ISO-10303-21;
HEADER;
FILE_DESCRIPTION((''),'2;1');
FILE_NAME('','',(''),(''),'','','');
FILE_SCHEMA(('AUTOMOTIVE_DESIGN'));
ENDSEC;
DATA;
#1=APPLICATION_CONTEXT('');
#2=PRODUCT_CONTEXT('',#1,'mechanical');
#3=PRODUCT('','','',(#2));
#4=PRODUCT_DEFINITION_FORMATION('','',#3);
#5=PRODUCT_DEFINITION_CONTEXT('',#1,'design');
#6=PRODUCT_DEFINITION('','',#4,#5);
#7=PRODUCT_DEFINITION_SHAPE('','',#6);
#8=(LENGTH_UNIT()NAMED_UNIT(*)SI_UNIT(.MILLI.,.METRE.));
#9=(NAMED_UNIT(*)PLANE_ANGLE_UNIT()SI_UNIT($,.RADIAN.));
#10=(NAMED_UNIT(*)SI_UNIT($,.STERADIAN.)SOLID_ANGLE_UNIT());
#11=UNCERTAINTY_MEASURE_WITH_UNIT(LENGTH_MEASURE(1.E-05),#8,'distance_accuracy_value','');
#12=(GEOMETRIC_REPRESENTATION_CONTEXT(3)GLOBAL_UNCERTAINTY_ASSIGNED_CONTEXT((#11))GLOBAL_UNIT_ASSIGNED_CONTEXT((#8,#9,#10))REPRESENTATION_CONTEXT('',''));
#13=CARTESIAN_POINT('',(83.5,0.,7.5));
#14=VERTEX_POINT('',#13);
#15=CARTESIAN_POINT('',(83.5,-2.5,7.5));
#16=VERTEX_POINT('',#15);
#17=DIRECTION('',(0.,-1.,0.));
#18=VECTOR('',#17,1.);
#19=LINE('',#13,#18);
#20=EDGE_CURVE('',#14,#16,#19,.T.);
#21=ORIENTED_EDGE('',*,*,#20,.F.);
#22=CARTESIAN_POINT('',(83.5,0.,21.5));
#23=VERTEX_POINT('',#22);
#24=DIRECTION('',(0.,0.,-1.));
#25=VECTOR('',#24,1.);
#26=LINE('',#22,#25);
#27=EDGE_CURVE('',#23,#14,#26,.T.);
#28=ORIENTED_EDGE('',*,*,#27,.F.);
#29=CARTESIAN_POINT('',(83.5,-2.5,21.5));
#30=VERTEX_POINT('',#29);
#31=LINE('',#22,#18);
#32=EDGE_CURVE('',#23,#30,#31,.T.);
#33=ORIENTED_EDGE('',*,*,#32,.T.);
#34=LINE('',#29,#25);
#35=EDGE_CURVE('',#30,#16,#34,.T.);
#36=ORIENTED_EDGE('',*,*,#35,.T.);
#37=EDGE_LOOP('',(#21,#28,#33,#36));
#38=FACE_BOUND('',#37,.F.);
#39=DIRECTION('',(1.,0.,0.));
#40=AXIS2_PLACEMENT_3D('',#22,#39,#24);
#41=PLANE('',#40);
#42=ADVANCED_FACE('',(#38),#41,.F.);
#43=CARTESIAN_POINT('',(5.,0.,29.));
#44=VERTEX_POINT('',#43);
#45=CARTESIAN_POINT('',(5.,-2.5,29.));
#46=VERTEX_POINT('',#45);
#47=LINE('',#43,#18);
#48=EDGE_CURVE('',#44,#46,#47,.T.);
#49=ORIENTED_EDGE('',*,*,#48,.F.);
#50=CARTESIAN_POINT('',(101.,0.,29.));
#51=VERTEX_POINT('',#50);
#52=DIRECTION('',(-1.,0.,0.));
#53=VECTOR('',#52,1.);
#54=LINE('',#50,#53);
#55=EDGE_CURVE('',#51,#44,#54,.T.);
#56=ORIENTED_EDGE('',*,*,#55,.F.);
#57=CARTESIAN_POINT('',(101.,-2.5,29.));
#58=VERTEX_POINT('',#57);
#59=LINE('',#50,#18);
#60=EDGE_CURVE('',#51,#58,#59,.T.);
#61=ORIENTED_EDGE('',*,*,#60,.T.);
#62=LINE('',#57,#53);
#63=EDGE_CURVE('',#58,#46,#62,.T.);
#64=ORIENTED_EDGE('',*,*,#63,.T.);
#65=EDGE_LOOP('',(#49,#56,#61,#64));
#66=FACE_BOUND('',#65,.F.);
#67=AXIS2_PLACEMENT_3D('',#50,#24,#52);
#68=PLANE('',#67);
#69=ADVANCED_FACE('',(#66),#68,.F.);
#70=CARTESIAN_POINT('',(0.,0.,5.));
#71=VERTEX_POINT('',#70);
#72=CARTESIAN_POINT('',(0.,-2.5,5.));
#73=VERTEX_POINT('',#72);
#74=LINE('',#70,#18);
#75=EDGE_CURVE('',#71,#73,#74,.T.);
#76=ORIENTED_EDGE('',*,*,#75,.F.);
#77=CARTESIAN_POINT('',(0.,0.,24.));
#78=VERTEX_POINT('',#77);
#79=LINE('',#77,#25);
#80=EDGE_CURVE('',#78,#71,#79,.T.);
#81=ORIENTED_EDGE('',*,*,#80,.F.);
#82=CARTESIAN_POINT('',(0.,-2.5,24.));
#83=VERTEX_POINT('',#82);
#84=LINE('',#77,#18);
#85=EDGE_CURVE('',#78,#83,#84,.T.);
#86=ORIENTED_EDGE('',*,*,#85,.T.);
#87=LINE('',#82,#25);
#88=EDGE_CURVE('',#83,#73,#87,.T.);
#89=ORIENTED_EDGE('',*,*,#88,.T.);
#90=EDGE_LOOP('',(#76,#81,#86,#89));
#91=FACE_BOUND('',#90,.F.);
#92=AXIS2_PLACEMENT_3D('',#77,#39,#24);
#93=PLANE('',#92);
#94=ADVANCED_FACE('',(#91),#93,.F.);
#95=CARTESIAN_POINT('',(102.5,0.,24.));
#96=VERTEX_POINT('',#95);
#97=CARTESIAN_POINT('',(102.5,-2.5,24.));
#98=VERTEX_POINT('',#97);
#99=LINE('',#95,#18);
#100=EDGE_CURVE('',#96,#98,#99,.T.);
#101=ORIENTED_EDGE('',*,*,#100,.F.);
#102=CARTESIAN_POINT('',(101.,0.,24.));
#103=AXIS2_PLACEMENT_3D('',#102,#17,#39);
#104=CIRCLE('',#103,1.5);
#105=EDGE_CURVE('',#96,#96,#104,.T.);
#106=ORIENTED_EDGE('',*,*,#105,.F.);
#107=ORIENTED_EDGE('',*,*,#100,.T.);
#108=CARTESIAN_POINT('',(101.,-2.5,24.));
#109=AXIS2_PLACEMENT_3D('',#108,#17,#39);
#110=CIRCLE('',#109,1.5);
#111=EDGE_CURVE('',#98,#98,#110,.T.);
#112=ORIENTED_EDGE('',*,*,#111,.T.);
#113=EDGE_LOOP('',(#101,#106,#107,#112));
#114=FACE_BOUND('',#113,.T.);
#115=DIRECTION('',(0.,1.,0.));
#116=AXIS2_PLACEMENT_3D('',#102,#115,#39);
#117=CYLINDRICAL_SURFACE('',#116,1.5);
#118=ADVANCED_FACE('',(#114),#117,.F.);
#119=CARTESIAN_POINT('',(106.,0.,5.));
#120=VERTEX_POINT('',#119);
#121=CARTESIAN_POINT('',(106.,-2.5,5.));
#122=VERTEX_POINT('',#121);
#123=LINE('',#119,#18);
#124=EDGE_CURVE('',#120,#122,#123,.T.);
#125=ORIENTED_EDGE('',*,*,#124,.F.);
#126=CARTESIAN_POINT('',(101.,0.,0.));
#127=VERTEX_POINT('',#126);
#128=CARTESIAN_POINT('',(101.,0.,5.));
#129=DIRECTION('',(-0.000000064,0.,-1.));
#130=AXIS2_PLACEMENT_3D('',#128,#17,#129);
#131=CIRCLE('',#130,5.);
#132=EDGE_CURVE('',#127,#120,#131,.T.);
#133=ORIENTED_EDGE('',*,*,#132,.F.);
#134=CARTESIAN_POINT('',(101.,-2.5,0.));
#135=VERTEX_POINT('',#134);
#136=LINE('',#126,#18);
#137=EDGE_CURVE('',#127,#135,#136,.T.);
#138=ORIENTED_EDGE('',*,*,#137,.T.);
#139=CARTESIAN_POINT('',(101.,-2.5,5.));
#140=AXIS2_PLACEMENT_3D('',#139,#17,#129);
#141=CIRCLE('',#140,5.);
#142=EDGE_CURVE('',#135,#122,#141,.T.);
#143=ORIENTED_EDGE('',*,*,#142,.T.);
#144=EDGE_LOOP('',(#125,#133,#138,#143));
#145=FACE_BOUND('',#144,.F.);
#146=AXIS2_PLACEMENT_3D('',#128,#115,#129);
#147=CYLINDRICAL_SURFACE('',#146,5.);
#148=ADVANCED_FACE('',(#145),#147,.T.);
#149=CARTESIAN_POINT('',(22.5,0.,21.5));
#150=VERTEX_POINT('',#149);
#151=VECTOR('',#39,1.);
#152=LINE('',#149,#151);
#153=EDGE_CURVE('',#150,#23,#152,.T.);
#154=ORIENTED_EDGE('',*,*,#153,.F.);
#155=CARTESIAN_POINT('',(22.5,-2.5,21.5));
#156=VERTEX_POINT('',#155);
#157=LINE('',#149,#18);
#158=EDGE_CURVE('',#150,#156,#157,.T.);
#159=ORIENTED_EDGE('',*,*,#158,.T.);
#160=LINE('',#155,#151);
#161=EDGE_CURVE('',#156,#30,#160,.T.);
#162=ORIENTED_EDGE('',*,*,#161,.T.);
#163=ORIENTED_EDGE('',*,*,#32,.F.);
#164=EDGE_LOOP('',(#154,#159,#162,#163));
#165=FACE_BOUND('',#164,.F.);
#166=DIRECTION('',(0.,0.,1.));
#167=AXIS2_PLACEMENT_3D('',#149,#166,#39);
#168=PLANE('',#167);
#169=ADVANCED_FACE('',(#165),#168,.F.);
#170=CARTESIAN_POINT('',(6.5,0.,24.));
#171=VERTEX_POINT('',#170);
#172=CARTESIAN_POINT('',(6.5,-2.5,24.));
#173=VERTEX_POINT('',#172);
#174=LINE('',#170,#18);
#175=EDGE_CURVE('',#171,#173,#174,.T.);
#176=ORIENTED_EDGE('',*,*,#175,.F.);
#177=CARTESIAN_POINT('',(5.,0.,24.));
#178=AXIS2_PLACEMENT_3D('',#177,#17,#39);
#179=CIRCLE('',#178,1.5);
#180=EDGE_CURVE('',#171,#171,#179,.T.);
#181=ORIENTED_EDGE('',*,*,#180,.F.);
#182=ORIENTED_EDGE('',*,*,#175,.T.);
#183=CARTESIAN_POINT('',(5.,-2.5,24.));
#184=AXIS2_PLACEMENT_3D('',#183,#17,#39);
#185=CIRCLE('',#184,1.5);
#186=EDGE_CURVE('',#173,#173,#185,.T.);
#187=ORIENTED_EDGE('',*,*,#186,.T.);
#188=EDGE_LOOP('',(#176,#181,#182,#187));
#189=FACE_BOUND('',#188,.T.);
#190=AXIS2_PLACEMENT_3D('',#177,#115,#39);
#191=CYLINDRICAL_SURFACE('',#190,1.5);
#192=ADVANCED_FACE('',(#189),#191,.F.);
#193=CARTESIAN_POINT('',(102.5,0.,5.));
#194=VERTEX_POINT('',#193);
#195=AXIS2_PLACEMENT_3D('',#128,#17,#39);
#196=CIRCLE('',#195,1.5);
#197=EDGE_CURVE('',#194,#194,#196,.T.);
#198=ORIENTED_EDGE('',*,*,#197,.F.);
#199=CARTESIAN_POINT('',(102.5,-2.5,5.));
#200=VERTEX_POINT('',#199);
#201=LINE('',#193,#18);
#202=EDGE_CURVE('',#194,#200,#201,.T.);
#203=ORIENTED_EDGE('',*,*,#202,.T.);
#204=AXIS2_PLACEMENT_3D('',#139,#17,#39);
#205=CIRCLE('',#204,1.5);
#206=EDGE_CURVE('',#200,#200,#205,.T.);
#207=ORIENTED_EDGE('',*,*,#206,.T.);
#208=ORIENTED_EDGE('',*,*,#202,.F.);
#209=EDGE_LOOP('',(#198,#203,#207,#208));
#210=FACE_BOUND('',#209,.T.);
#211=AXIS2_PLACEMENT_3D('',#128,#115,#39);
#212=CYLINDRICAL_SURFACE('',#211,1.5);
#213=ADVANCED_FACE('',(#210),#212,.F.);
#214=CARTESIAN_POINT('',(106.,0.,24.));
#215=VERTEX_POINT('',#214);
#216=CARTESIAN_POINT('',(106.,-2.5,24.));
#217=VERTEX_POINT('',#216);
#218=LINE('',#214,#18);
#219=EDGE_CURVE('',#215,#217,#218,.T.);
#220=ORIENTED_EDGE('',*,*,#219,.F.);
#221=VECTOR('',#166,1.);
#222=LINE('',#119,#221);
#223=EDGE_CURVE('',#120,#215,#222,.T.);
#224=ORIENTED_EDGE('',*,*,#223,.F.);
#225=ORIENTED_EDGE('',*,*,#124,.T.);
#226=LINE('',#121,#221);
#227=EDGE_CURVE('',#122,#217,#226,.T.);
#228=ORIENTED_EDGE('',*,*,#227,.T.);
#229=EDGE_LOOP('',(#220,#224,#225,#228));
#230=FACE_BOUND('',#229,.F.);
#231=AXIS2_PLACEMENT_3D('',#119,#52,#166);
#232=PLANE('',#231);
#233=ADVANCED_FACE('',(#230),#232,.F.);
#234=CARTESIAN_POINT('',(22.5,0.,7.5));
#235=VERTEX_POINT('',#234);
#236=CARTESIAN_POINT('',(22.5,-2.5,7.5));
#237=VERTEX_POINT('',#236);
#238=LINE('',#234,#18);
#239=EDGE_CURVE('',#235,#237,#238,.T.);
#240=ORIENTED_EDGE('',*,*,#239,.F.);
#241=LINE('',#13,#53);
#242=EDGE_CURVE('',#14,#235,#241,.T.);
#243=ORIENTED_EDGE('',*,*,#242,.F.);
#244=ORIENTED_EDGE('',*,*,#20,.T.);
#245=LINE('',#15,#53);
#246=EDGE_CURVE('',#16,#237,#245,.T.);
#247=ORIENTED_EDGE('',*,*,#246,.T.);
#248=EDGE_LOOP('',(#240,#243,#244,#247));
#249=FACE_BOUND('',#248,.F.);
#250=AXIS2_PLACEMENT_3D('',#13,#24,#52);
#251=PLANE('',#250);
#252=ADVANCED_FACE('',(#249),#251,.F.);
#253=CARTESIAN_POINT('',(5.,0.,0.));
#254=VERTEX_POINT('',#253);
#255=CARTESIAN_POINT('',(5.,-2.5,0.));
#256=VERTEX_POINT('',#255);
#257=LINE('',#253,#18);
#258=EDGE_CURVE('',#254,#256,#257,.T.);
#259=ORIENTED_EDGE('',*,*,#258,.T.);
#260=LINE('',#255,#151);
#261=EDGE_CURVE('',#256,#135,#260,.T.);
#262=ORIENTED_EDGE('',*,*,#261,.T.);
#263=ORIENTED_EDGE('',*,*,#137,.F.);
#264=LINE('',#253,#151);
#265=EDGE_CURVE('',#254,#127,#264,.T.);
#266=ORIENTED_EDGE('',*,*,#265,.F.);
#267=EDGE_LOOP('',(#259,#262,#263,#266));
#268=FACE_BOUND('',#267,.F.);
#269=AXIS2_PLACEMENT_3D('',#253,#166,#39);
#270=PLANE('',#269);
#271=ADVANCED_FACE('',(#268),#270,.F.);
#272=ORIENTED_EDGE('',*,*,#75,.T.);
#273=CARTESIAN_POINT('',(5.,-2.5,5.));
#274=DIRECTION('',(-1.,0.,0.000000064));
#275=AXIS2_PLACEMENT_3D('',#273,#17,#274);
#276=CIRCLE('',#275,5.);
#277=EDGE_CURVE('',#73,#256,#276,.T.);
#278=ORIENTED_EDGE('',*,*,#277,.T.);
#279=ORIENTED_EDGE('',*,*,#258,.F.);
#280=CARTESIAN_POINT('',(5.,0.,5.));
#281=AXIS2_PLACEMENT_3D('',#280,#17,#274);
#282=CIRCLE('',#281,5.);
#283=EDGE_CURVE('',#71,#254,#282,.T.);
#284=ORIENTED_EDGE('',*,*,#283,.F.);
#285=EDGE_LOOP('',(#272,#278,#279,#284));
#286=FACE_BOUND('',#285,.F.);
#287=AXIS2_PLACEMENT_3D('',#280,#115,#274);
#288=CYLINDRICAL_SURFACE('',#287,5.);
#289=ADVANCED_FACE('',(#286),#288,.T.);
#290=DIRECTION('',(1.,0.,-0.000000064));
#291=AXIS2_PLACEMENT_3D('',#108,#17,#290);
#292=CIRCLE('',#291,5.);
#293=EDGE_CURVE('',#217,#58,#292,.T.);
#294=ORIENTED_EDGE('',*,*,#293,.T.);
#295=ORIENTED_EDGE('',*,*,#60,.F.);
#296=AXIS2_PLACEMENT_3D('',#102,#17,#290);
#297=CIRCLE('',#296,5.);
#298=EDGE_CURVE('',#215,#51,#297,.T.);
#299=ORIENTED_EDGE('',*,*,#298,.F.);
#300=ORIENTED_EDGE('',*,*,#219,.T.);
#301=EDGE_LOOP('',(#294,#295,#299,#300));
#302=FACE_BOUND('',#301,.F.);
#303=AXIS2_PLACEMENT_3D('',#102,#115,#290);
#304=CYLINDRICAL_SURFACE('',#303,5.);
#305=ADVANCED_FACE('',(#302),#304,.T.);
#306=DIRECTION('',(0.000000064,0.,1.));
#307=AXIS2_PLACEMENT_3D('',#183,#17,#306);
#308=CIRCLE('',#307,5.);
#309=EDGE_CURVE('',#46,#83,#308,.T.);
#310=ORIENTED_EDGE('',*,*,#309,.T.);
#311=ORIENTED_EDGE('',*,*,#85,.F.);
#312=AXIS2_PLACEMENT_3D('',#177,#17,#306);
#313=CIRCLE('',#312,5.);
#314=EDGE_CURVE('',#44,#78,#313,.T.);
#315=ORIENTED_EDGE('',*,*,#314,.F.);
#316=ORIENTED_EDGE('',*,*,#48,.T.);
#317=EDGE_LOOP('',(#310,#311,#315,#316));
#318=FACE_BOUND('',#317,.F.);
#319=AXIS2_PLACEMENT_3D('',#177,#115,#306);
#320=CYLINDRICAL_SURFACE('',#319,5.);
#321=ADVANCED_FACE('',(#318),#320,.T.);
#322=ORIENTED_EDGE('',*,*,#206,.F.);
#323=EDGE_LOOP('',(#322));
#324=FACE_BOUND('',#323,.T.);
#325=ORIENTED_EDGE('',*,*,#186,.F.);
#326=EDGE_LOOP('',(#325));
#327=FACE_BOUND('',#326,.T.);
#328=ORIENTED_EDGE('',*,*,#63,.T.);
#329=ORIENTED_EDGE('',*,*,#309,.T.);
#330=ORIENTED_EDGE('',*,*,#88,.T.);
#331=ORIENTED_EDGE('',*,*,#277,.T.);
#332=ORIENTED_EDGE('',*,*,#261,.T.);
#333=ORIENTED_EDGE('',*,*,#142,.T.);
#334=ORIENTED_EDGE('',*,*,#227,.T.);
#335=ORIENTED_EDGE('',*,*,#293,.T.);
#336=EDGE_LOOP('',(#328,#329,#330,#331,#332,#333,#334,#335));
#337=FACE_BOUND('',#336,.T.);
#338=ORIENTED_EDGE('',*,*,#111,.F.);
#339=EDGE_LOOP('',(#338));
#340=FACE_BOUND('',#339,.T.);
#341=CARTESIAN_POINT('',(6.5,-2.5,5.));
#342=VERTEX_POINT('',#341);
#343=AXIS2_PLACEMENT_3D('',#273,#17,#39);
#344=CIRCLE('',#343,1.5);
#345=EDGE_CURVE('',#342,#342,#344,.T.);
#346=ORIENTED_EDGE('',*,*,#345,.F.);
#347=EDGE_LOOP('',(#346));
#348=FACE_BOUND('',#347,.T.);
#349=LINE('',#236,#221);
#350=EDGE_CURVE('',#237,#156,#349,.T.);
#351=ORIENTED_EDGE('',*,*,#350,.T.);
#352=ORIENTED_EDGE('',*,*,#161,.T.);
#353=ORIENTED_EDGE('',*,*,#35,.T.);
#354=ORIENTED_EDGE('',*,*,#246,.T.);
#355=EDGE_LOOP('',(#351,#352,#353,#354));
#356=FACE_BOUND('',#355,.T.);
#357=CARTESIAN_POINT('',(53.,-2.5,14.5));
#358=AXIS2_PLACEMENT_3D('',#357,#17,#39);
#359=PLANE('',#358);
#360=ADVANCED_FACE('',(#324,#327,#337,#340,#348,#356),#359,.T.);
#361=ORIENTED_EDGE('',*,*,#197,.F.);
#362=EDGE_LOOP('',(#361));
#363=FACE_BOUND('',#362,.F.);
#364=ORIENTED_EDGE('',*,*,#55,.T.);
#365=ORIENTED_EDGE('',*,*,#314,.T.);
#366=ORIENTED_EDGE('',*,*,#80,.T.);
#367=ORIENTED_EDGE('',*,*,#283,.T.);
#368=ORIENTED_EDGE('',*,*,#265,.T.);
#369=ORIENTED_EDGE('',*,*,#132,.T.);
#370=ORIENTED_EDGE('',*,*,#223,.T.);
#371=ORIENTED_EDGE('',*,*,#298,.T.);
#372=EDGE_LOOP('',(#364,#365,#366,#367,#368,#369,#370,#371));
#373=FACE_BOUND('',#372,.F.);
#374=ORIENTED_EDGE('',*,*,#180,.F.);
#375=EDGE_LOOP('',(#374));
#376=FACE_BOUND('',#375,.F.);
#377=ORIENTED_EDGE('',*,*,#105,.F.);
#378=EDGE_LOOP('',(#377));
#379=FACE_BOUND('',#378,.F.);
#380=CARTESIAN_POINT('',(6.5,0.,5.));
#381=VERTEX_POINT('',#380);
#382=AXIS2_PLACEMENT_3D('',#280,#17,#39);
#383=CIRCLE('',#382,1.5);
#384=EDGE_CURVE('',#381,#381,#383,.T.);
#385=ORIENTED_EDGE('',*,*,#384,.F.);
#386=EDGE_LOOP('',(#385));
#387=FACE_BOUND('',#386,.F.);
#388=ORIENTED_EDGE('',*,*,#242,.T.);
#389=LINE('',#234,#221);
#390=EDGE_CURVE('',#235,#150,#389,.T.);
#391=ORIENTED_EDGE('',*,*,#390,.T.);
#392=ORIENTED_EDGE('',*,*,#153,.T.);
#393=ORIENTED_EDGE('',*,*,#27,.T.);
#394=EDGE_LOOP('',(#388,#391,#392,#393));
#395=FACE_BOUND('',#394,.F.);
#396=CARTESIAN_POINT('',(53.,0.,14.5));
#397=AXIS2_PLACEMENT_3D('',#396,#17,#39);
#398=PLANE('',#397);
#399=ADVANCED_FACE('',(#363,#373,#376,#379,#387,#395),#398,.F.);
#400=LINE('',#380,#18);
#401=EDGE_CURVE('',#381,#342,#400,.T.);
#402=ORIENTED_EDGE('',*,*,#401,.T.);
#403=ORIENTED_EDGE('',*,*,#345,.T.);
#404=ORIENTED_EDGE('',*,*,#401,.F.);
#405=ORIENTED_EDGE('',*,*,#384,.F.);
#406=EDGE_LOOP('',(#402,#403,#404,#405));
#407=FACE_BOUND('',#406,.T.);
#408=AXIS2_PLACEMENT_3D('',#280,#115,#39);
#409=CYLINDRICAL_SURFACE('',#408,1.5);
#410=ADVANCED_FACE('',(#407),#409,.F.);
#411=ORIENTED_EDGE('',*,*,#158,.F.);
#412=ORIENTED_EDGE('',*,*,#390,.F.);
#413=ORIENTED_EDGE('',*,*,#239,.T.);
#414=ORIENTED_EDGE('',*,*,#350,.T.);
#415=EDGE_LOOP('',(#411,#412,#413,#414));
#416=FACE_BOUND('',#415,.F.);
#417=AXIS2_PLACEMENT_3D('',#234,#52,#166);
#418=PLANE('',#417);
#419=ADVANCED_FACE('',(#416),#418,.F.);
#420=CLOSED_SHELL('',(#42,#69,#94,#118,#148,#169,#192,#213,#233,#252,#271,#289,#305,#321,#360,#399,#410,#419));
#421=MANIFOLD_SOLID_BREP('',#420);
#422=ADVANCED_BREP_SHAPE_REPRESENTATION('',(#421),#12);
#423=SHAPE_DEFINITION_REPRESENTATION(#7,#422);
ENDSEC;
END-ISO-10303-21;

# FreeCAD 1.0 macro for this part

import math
import FreeCAD as App
import Part
import Sketcher
from FreeCAD import Vector
Q = App.Units.Quantity


def add_polygon(sketch, points):
    """Adds a closed chain of lines whose ends are joined by coincident constraints."""
    first, n = sketch.GeometryCount, len(points)
    for a, b in zip(points, points[1:] + points[:1]):
        sketch.addGeometry(Part.LineSegment(App.Vector(*a, 0), App.Vector(*b, 0)), False)
    for i in range(n):
        sketch.addConstraint(Sketcher.Constraint("Coincident", first + i, 2, first + (i + 1) % n, 1))

doc = App.newDocument("Part")
params = doc.addObject("Spreadsheet::Sheet", "Params")
for row, (alias, value) in enumerate([
    ("sketch1_diameter", "3 mm"),
    ("sketch1_radius", "5 mm"),
    ("sketch1_width", "96 mm"),
    ("sketch1_width2", "61 mm"),
    ("sketch1_height", "19 mm"),
    ("pad1_length", "2.5 mm"),
], start=1):
    params.set(f"A{row}", alias)
    params.set(f"B{row}", "=" + value)
    params.setAlias(f"B{row}", alias)

body = doc.addObject("PartDesign::Body", "Body")

sketch1 = body.newObject("Sketcher::SketchObject", "Sketch")
sketch1.AttachmentSupport = (doc.getObject("XZ_Plane"), [""])
sketch1.MapMode = "FlatFace"
sketch1.addGeometry(Part.ArcOfCircle(Part.Circle(Vector(5, 5, 0), Vector(0, 0, 1), 5), math.radians(180), math.radians(270)), False)
sketch1.addGeometry(Part.LineSegment(Vector(5, 0, 0), Vector(101, 0, 0)), False)
sketch1.addGeometry(Part.ArcOfCircle(Part.Circle(Vector(101, 5, 0), Vector(0, 0, 1), 5), math.radians(-90), math.radians(0)), False)
sketch1.addGeometry(Part.LineSegment(Vector(106, 5, 0), Vector(106, 24, 0)), False)
sketch1.addGeometry(Part.ArcOfCircle(Part.Circle(Vector(101, 24, 0), Vector(0, 0, 1), 5), math.radians(0), math.radians(90)), False)
sketch1.addGeometry(Part.LineSegment(Vector(101, 29, 0), Vector(5, 29, 0)), False)
sketch1.addGeometry(Part.ArcOfCircle(Part.Circle(Vector(5, 24, 0), Vector(0, 0, 1), 5), math.radians(90), math.radians(180)), False)
sketch1.addGeometry(Part.LineSegment(Vector(0, 24, 0), Vector(0, 5, 0)), False)
sketch1.addGeometry(Part.Circle(Vector(5, 5, 0), Vector(0, 0, 1), 1.5), False)
sketch1.addGeometry(Part.Circle(Vector(101, 5, 0), Vector(0, 0, 1), 1.5), False)
sketch1.addGeometry(Part.Circle(Vector(5, 24, 0), Vector(0, 0, 1), 1.5), False)
add_polygon(sketch1, [(83.5, 7.5), (22.5, 7.5), (22.5, 21.5), (83.5, 21.5)])
sketch1.addGeometry(Part.Circle(Vector(101, 24, 0), Vector(0, 0, 1), 1.5), False)
sketch1.addConstraint(Sketcher.Constraint("Tangent", 0, 2, 1, 1))
sketch1.addConstraint(Sketcher.Constraint("Tangent", 1, 2, 2, 1))
sketch1.addConstraint(Sketcher.Constraint("Tangent", 2, 2, 3, 1))
sketch1.addConstraint(Sketcher.Constraint("Tangent", 3, 2, 4, 1))
sketch1.addConstraint(Sketcher.Constraint("Tangent", 4, 2, 5, 1))
sketch1.addConstraint(Sketcher.Constraint("Tangent", 5, 2, 6, 1))
sketch1.addConstraint(Sketcher.Constraint("Tangent", 6, 2, 7, 1))
sketch1.addConstraint(Sketcher.Constraint("Tangent", 7, 2, 0, 1))
sketch1.addConstraint(Sketcher.Constraint("Horizontal", 1))
sketch1.addConstraint(Sketcher.Constraint("Vertical", 3))
sketch1.addConstraint(Sketcher.Constraint("Horizontal", 5))
sketch1.addConstraint(Sketcher.Constraint("Vertical", 7))
sketch1.addConstraint(Sketcher.Constraint("Horizontal", 11))
sketch1.addConstraint(Sketcher.Constraint("Vertical", 12))
sketch1.addConstraint(Sketcher.Constraint("Horizontal", 13))
sketch1.addConstraint(Sketcher.Constraint("Vertical", 14))
sketch1.addConstraint(Sketcher.Constraint("Coincident", 8, 3, 0, 3))
sketch1.addConstraint(Sketcher.Constraint("Coincident", 9, 3, 2, 3))
sketch1.addConstraint(Sketcher.Constraint("Coincident", 10, 3, 6, 3))
sketch1.addConstraint(Sketcher.Constraint("Coincident", 15, 3, 4, 3))
sketch1.addConstraint(Sketcher.Constraint("Equal", 0, 2))
sketch1.addConstraint(Sketcher.Constraint("Equal", 2, 4))
sketch1.addConstraint(Sketcher.Constraint("Equal", 4, 6))
sketch1.addConstraint(Sketcher.Constraint("Equal", 8, 9))
sketch1.addConstraint(Sketcher.Constraint("Equal", 9, 10))
sketch1.addConstraint(Sketcher.Constraint("Equal", 10, 15))
sketch1.addConstraint(Sketcher.Constraint("PointOnObject", 0, 2, -1))
sketch1.addConstraint(Sketcher.Constraint("PointOnObject", 6, 2, -2))
sketch1.addConstraint(Sketcher.Constraint("Diameter", 8, Q("3 mm")))
sketch1.addConstraint(Sketcher.Constraint("Radius", 0, Q("5 mm")))
sketch1.addConstraint(Sketcher.Constraint("DistanceX", 1, 1, 1, 2, Q("96 mm")))
sketch1.addConstraint(Sketcher.Constraint("DistanceX", 11, 2, 11, 1, Q("61 mm")))
sketch1.addConstraint(Sketcher.Constraint("DistanceY", 3, 1, 3, 2, Q("19 mm")))
sketch1.addConstraint(Sketcher.Constraint("DistanceY", 12, 1, 12, 2, Q("14 mm")))
sketch1.addConstraint(Sketcher.Constraint("DistanceX", -1, 1, 11, 2, Q("22.5 mm")))
sketch1.addConstraint(Sketcher.Constraint("DistanceY", -1, 1, 11, 2, Q("7.5 mm")))
sketch1.setExpression("Constraints[32]", "Params.sketch1_diameter")
sketch1.setExpression("Constraints[33]", "Params.sketch1_radius")
sketch1.setExpression("Constraints[34]", "Params.sketch1_width")
sketch1.setExpression("Constraints[35]", "Params.sketch1_width2")
sketch1.setExpression("Constraints[36]", "Params.sketch1_height")
pad1 = body.newObject("PartDesign::Pad", "Pad")
pad1.Profile = sketch1
pad1.setExpression("Length", "Params.pad1_length")

doc.recompute()
